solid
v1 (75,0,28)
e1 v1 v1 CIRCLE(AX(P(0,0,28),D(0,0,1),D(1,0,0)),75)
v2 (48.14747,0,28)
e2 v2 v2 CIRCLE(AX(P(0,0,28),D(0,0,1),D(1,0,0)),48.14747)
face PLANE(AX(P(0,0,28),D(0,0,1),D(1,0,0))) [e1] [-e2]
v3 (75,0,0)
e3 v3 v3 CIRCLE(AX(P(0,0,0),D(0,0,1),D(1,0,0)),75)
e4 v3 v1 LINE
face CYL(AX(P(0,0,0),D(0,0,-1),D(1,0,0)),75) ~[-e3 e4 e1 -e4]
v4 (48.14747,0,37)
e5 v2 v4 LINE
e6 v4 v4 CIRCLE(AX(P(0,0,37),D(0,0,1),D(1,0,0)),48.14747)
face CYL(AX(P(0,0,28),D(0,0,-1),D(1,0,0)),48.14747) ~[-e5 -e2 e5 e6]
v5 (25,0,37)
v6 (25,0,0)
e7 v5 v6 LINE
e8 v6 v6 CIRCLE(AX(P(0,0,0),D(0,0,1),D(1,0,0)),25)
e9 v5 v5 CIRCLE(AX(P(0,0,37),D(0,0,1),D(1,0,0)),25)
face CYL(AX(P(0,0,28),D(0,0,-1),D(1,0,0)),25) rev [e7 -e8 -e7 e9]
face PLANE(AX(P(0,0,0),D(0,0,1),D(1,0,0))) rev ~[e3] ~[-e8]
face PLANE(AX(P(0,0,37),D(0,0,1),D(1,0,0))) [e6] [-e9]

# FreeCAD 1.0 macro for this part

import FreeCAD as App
import Part
import Sketcher

doc = App.newDocument("Part")
body = doc.addObject("PartDesign::Body", "Body")

sketch1 = doc.addObject("Sketcher::SketchObject", "Sketch")
body.addObject(sketch1)
sketch1.AttachmentSupport = (doc.XY_Plane, [""])
sketch1.MapMode = "FlatFace"
sketch1.addGeometry(Part.Circle(App.Vector(0, 0, 0), App.Vector(0, 0, 1), 75), False)
sketch1.addGeometry(Part.Circle(App.Vector(0, 0, 0), App.Vector(0, 0, 1), 25), False)
sketch1.addConstraint(Sketcher.Constraint("Coincident", 0, 3, -1, 1))
sketch1.addConstraint(Sketcher.Constraint("Coincident", 1, 3, -1, 1))
sketch1.addConstraint(Sketcher.Constraint("Diameter", 0, 150.0))
sketch1.addConstraint(Sketcher.Constraint("Diameter", 1, 50.0))
pad1 = doc.addObject("PartDesign::Pad", "Pad")
body.addObject(pad1)
pad1.Profile = sketch1
pad1.Length = 28

sketch2 = doc.addObject("Sketcher::SketchObject", "Sketch001")
body.addObject(sketch2)
sketch2.AttachmentSupport = (doc.XY_Plane, [""])
sketch2.MapMode = "FlatFace"
sketch2.AttachmentOffset = App.Placement(App.Vector(0, 0, 28), App.Rotation())
sketch2.addGeometry(Part.Circle(App.Vector(0, 0, 0), App.Vector(0, 0, 1), 48), False)
sketch2.addGeometry(Part.Circle(App.Vector(0, 0, 0), App.Vector(0, 0, 1), 25), False)
sketch2.addConstraint(Sketcher.Constraint("Coincident", 0, 3, -1, 1))
sketch2.addConstraint(Sketcher.Constraint("Coincident", 1, 3, -1, 1))
sketch2.addConstraint(Sketcher.Constraint("Diameter", 1, 50.0))
sketch2.addConstraint(Sketcher.Constraint("Diameter", 0, 96.29494))
pad2 = doc.addObject("PartDesign::Pad", "Pad001")
body.addObject(pad2)
pad2.Profile = sketch2
pad2.Length = 9

sketch3 = doc.addObject("Sketcher::SketchObject", "Sketch002")
body.addObject(sketch3)
sketch3.AttachmentSupport = (doc.XY_Plane, [""])
sketch3.MapMode = "FlatFace"
sketch3.AttachmentOffset = App.Placement(App.Vector(0, 0, 37), App.Rotation())
sketch3.addGeometry(Part.Circle(App.Vector(0, 0, 0), App.Vector(0, 0, 1), 40), False)
sketch3.addGeometry(Part.Circle(App.Vector(0, 0, 0), App.Vector(0, 0, 1), 25), False)
sketch3.addConstraint(Sketcher.Constraint("Coincident", 0, 3, -1, 1))
sketch3.addConstraint(Sketcher.Constraint("Coincident", 1, 3, -1, 1))
sketch3.addConstraint(Sketcher.Constraint("Diameter", 1, 50.0))
sketch3.addConstraint(Sketcher.Constraint("Diameter", 0, 79.881877))
pad3 = doc.addObject("PartDesign::Pad", "Pad002")
body.addObject(pad3)
pad3.Profile = sketch3
pad3.Length = 15
pad3.Reversed = True

doc.recompute()
